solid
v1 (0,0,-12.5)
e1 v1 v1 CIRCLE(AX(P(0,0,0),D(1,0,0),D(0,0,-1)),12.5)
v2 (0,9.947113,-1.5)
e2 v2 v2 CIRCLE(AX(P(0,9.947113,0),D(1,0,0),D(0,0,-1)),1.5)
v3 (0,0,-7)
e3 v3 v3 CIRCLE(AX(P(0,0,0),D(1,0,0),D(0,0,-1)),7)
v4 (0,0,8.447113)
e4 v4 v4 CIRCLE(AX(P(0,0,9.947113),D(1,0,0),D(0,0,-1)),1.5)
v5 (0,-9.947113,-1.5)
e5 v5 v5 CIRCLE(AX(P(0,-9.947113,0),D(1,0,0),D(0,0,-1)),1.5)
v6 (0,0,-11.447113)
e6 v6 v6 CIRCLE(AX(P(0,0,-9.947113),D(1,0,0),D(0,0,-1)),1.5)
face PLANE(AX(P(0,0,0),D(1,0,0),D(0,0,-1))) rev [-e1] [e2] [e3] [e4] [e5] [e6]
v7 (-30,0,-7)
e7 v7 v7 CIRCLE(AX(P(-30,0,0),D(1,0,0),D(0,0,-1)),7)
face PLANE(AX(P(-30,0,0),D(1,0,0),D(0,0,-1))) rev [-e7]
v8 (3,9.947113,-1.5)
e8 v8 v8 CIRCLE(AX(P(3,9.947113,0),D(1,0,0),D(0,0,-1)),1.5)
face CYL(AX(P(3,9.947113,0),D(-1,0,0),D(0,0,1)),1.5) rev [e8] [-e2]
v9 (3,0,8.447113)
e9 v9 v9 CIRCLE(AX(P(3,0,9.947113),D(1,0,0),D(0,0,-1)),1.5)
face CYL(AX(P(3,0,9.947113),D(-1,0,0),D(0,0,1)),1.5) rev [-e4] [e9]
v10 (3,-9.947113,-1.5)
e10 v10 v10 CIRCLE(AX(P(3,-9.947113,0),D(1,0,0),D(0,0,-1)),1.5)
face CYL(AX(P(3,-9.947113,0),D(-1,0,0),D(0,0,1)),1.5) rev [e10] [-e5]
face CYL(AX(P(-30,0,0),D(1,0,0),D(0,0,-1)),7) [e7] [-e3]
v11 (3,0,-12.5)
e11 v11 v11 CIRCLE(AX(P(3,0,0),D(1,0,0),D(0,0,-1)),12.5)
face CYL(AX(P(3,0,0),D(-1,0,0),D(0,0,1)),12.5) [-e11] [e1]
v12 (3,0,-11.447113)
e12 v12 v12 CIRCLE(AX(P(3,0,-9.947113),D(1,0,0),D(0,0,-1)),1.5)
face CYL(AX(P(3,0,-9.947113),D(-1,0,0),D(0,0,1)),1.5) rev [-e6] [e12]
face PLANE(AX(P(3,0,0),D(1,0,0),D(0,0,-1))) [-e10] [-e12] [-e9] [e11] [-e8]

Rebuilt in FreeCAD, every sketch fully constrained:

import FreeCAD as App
import Part
import Sketcher

V = App.Vector
Q = App.Units.Quantity

doc = App.newDocument("Part")
body = doc.addObject("PartDesign::Body", "Body")

sketch1 = body.newObject("Sketcher::SketchObject", "Sketch")
sketch1.AttachmentSupport = (doc.getObject("YZ_Plane"), [""])
sketch1.MapMode = "FlatFace"
sketch1.addGeometry(Part.Circle(V(0, 0, 0), V(0, 0, 1), 7), False)
sketch1.addConstraint(Sketcher.Constraint("Coincident", 0, 3, -1, 1))
sketch1.addConstraint(Sketcher.Constraint("Diameter", 0, Q("14 mm")))
pad1 = body.newObject("PartDesign::Pad", "Pad")
pad1.Profile = sketch1
pad1.Length = 30
pad1.Reversed = True

sketch2 = body.newObject("Sketcher::SketchObject", "Sketch001")
sketch2.AttachmentSupport = (doc.getObject("YZ_Plane"), [""])
sketch2.MapMode = "FlatFace"
sketch2.addGeometry(Part.Circle(V(0, 0, 0), V(0, 0, 1), 12.5), False)
sketch2.addGeometry(Part.Circle(V(0, 9.947113, 0), V(0, 0, 1), 1.5), False)
sketch2.addGeometry(Part.Circle(V(-9.947113, 0, 0), V(0, 0, 1), 1.5), False)
sketch2.addGeometry(Part.Circle(V(0, -9.947113, 0), V(0, 0, 1), 1.5), False)
sketch2.addGeometry(Part.Circle(V(9.947113, 0, 0), V(0, 0, 1), 1.5), False)
sketch2.addConstraint(Sketcher.Constraint("Coincident", 0, 3, -1, 1))
sketch2.addConstraint(Sketcher.Constraint("Equal", 1, 2))
sketch2.addConstraint(Sketcher.Constraint("Equal", 2, 3))
sketch2.addConstraint(Sketcher.Constraint("Equal", 3, 4))
sketch2.addConstraint(Sketcher.Constraint("Symmetric", 1, 3, 3, 3, -1, 1))
sketch2.addConstraint(Sketcher.Constraint("Symmetric", 2, 3, 4, 3, -1, 1))
sketch2.addConstraint(Sketcher.Constraint("PointOnObject", 1, 3, -2))
sketch2.addConstraint(Sketcher.Constraint("PointOnObject", 2, 3, -1))
sketch2.addConstraint(Sketcher.Constraint("Diameter", 0, Q("25 mm")))
sketch2.addConstraint(Sketcher.Constraint("Diameter", 1, Q("3 mm")))
sketch2.addConstraint(Sketcher.Constraint("DistanceY", -1, 1, 1, 3, Q("9.947113 mm")))
sketch2.addConstraint(Sketcher.Constraint("DistanceX", 2, 3, -1, 1, Q("9.947113 mm")))
pad2 = body.newObject("PartDesign::Pad", "Pad001")
pad2.Profile = sketch2
pad2.Length = 3

doc.recompute()
